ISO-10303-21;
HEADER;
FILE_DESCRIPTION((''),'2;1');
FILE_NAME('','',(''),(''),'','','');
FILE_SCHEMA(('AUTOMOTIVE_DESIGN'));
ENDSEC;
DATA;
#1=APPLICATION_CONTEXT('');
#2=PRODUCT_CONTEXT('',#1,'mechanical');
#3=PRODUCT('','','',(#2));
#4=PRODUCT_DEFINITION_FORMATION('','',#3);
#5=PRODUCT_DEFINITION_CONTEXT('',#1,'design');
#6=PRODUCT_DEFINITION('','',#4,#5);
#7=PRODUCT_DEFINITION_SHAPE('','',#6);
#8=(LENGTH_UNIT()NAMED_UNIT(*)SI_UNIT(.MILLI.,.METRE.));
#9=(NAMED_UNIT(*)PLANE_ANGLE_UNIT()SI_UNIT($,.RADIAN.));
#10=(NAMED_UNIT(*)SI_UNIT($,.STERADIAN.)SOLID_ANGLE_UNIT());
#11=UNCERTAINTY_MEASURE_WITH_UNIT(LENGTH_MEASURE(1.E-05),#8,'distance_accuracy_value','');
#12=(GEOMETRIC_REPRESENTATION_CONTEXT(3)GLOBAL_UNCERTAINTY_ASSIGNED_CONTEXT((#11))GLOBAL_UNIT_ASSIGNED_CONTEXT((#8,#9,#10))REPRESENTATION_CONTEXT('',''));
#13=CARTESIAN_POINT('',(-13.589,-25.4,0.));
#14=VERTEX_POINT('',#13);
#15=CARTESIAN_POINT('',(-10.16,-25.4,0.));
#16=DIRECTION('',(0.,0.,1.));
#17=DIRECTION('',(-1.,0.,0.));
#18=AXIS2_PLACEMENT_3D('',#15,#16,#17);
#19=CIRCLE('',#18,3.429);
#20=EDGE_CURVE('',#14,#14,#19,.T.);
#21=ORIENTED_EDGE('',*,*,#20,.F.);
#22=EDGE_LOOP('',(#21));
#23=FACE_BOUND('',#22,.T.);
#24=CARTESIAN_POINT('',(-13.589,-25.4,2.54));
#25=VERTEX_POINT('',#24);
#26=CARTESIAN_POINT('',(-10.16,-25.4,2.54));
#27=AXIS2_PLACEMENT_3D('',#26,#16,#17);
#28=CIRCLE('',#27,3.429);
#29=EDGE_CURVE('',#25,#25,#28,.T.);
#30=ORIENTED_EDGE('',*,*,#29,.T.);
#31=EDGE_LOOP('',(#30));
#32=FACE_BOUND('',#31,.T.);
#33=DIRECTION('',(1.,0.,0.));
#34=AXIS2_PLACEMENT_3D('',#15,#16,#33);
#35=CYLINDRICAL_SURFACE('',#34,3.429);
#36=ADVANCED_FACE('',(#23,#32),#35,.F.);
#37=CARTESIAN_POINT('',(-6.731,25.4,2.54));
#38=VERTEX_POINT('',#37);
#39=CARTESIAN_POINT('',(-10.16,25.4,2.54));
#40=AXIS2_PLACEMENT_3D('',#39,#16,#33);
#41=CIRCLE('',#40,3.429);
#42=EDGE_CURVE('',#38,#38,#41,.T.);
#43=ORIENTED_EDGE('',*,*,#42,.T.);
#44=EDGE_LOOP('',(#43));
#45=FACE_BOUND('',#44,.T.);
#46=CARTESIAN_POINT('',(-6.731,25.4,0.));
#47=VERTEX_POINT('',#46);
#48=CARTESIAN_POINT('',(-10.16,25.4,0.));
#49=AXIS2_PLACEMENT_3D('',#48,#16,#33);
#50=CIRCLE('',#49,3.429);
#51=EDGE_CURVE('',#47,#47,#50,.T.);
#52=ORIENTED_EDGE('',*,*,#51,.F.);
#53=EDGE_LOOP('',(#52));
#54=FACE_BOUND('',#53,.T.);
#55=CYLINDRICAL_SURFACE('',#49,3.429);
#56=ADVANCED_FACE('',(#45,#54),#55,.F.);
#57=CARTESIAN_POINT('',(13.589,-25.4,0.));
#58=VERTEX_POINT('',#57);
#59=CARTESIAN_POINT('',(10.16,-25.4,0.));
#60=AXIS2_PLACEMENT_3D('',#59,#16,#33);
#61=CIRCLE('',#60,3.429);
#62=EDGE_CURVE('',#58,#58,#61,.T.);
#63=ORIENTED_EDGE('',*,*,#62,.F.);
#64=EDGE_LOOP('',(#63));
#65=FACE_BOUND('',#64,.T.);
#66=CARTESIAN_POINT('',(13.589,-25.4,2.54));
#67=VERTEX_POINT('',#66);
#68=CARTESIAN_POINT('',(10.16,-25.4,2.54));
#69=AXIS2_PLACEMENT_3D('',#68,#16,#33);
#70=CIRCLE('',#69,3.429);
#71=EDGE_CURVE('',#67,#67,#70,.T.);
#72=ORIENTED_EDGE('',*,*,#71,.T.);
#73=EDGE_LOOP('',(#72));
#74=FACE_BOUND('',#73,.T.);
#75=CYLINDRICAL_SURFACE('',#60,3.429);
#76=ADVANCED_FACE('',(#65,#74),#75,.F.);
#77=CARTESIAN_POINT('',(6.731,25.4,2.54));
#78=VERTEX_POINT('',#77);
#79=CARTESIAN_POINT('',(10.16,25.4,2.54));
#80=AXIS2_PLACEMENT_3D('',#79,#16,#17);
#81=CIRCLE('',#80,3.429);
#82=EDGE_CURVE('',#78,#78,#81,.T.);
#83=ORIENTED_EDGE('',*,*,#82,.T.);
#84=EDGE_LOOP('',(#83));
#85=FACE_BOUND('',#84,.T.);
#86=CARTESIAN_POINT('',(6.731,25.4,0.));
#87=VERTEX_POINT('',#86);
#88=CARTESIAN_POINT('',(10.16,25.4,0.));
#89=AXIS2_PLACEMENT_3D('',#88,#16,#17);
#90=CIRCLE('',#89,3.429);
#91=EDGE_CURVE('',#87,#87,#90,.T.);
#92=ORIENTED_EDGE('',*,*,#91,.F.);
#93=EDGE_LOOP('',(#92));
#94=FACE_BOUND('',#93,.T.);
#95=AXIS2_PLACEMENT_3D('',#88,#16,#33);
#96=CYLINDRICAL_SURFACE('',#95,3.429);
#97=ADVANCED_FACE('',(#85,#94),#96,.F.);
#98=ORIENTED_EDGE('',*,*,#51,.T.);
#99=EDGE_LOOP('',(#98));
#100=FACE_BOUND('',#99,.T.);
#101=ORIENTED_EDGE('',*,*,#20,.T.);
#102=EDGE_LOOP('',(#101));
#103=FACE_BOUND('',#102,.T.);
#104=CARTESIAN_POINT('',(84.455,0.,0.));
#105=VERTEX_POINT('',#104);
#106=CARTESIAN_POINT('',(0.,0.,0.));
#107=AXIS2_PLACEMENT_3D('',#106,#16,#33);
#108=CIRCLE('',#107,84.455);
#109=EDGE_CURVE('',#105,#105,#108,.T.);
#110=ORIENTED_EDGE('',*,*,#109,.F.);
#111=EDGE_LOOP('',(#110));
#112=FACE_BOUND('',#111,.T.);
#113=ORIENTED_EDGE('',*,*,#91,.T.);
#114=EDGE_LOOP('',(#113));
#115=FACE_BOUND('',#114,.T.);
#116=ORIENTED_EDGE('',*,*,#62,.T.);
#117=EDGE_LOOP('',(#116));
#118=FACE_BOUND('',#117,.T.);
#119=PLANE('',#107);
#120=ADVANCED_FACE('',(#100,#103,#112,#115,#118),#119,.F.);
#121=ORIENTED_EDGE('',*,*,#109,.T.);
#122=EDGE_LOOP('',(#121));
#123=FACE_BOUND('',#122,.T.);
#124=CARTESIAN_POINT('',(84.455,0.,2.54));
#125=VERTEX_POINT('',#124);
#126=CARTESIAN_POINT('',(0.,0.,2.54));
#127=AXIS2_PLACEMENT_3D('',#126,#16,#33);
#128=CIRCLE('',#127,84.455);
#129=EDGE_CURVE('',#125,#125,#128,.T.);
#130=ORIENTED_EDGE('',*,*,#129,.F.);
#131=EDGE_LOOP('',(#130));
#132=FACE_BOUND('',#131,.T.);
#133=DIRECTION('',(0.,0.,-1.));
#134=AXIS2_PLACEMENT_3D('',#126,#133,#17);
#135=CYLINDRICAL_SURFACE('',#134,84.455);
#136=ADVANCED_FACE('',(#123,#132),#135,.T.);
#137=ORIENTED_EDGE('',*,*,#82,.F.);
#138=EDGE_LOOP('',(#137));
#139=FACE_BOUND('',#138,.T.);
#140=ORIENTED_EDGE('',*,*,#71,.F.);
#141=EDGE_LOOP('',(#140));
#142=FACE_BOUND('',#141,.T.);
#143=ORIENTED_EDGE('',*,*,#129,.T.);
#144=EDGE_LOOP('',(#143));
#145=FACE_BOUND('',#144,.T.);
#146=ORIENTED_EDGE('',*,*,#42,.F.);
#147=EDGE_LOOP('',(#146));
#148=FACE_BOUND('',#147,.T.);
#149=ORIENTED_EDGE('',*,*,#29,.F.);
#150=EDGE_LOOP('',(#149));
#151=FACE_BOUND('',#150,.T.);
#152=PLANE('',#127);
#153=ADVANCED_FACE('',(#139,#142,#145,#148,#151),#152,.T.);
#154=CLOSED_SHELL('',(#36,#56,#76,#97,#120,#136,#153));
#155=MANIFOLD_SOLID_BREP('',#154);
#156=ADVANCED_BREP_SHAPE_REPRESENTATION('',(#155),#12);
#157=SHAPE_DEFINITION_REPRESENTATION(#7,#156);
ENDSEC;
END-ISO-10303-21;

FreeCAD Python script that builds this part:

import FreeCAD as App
import Part
import Sketcher

V = App.Vector
Q = App.Units.Quantity

doc = App.newDocument("Part")
body = doc.addObject("PartDesign::Body", "Body")

# Sketch on XY plane
sketch1 = body.newObject("Sketcher::SketchObject", "Sketch")
sketch1.AttachmentSupport = (doc.getObject("XY_Plane"), [""])
sketch1.MapMode = "FlatFace"
sketch1.addGeometry(Part.Circle(V(0, 0, 0), V(0, 0, 1), 84), False)
sketch1.addConstraint([
    Sketcher.Constraint("Coincident", 0, 3, -1, 1),
    Sketcher.Constraint("Diameter", 0, Q("6.65 in")),
])
pad1 = body.newObject("PartDesign::Pad", "Pad")
pad1.Profile = sketch1
pad1.Length = Q("0.1 in")

# Sketch on XY plane
sketch2 = body.newObject("Sketcher::SketchObject", "Sketch001")
sketch2.AttachmentSupport = (doc.getObject("XY_Plane"), [""])
sketch2.MapMode = "FlatFace"
sketch2.AttachmentOffset = App.Placement(V(0, 0, 0.1 * 25.4), App.Rotation())
sketch2.addGeometry([
    Part.Circle(V(-10.2, 25.4, 0), V(0, 0, 1), 3.4),
    Part.Circle(V(10.2, 25.4, 0), V(0, 0, 1), 3.4),
    Part.Circle(V(10.2, -25.4, 0), V(0, 0, 1), 3.4),
    Part.Circle(V(-10.2, -25.4, 0), V(0, 0, 1), 3.4),
], False)
sketch2.addConstraint([
    Sketcher.Constraint("Equal", 0, 1),
    Sketcher.Constraint("Equal", 1, 2),
    Sketcher.Constraint("Equal", 2, 3),
    Sketcher.Constraint("Symmetric", 0, 3, 2, 3, -1, 1),
    Sketcher.Constraint("Symmetric", 1, 3, 3, 3, -1, 1),
    Sketcher.Constraint("Symmetric", 0, 3, 1, 3, -2),
    Sketcher.Constraint("Diameter", 0, Q("0.27 in")),
    Sketcher.Constraint("DistanceY", -1, 1, 0, 3, Q("1 in")),
    Sketcher.Constraint("DistanceX", 0, 3, -1, 1, Q("0.4 in")),
])
pocket1 = body.newObject("PartDesign::Pocket", "Pocket")
pocket1.Profile = sketch2
pocket1.Length = Q("0.1 in")

doc.recompute()
